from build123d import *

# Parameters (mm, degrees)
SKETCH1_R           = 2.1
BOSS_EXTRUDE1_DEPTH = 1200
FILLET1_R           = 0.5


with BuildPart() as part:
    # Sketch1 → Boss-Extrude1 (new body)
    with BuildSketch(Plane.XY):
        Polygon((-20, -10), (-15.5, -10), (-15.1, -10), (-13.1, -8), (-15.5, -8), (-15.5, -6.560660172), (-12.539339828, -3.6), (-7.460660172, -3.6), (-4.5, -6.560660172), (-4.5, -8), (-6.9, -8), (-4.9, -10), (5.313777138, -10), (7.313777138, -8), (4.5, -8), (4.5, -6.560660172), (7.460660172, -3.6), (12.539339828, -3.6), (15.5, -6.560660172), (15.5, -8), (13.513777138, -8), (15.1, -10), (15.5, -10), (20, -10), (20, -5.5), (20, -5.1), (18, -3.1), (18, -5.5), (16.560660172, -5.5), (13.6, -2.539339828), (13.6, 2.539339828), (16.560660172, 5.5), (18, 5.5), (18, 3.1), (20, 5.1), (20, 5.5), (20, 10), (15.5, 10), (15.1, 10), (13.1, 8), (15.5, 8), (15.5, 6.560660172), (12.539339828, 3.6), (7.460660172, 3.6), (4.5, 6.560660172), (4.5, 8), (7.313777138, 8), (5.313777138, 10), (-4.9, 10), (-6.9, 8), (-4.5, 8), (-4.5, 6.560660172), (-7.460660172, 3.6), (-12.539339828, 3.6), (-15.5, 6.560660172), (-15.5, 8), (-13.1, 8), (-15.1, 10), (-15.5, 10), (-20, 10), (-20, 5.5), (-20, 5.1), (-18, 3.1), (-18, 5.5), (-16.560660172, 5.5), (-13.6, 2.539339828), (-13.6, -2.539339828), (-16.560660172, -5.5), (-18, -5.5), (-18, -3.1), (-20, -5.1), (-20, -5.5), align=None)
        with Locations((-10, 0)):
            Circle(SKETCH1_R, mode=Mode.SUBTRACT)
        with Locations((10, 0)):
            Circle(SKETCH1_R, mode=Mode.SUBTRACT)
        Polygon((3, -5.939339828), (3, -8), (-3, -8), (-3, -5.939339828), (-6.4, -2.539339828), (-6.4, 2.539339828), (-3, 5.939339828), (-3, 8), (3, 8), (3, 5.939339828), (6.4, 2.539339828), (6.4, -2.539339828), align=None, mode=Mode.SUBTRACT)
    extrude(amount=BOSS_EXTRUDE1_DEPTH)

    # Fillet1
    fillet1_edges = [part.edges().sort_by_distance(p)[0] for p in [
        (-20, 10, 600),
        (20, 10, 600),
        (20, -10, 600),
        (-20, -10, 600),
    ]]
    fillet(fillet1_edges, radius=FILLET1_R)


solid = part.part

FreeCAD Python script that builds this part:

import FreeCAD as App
import Part
import Sketcher


def edges_at(feature, points):
    """Names of the edges that pass closest to the given points."""
    edges = feature.Shape.Edges
    near = lambda p: min(range(len(edges)), key=lambda i: edges[i].distToShape(Part.Vertex(*p))[0])
    return sorted({f"Edge{near(p) + 1}" for p in points})


def add_polygon(sketch, points):
    """Adds a closed chain of lines whose ends are joined by coincident constraints."""
    first, n = sketch.GeometryCount, len(points)
    for a, b in zip(points, points[1:] + points[:1]):
        sketch.addGeometry(Part.LineSegment(App.Vector(*a, 0), App.Vector(*b, 0)), False)
    for i in range(n):
        sketch.addConstraint(Sketcher.Constraint("Coincident", first + i, 2, first + (i + 1) % n, 1))

doc = App.newDocument("Part")
body = doc.addObject("PartDesign::Body", "Body")

# Sketch on XY plane
sketch1 = doc.addObject("Sketcher::SketchObject", "Sketch")
body.addObject(sketch1)
sketch1.AttachmentSupport = (doc.XY_Plane, [""])
sketch1.MapMode = "FlatFace"
add_polygon(sketch1, [(-20, -10), (-15.1, -10), (-13.1, -8), (-15.5, -8), (-15.5, -6.6), (-12.5, -3.6), (-7.5, -3.6), (-4.5, -6.6), (-4.5, -8), (-6.9, -8), (-4.9, -10), (5.3, -10), (7.3, -8), (4.5, -8), (4.5, -6.6), (7.5, -3.6), (12.5, -3.6), (15.5, -6.6), (15.5, -8), (13.5, -8), (15.1, -10), (20, -10), (20, -5.1), (18, -3.1), (18, -5.5), (16.6, -5.5), (13.6, -2.5), (13.6, 2.5), (16.6, 5.5), (18, 5.5), (18, 3.1), (20, 5.1), (20, 10), (15.1, 10), (13.1, 8), (15.5, 8), (15.5, 6.6), (12.5, 3.6), (7.5, 3.6), (4.5, 6.6), (4.5, 8), (7.3, 8), (5.3, 10), (-4.9, 10), (-6.9, 8), (-4.5, 8), (-4.5, 6.6), (-7.5, 3.6), (-12.5, 3.6), (-15.5, 6.6), (-15.5, 8), (-13.1, 8), (-15.1, 10), (-20, 10), (-20, 5.1), (-18, 3.1), (-18, 5.5), (-16.6, 5.5), (-13.6, 2.5), (-13.6, -2.5), (-16.6, -5.5), (-18, -5.5), (-18, -3.1), (-20, -5.1)])  # lines 0-63
sketch1.addGeometry(Part.Circle(App.Vector(-10, 0, 0), App.Vector(0, 0, 1), 2.1), False)  # 64
add_polygon(sketch1, [(6.4, -2.5), (3, -5.9), (3, -8), (-3, -8), (-3, -5.9), (-6.4, -2.5), (-6.4, 2.5), (-3, 5.9), (-3, 8), (3, 8), (3, 5.9), (6.4, 2.5)])  # lines 65-76
sketch1.addGeometry(Part.Circle(App.Vector(10, 0, 0), App.Vector(0, 0, 1), 2.1), False)  # 77
sketch1.addConstraint([
    Sketcher.Constraint("Horizontal", 0),
    Sketcher.Constraint("Horizontal", 2),
    Sketcher.Constraint("Vertical", 3),
    Sketcher.Constraint("Horizontal", 5),
    Sketcher.Constraint("Vertical", 7),
    Sketcher.Constraint("Horizontal", 8),
    Sketcher.Constraint("Horizontal", 10),
    Sketcher.Constraint("Horizontal", 12),
    Sketcher.Constraint("Vertical", 13),
    Sketcher.Constraint("Horizontal", 15),
    Sketcher.Constraint("Vertical", 17),
    Sketcher.Constraint("Horizontal", 18),
    Sketcher.Constraint("Horizontal", 20),
    Sketcher.Constraint("Vertical", 21),
    Sketcher.Constraint("Vertical", 23),
    Sketcher.Constraint("Horizontal", 24),
    Sketcher.Constraint("Vertical", 26),
    Sketcher.Constraint("Horizontal", 28),
    Sketcher.Constraint("Vertical", 29),
    Sketcher.Constraint("Vertical", 31),
    Sketcher.Constraint("Horizontal", 32),
    Sketcher.Constraint("Horizontal", 34),
    Sketcher.Constraint("Vertical", 35),
    Sketcher.Constraint("Horizontal", 37),
    Sketcher.Constraint("Vertical", 39),
    Sketcher.Constraint("Horizontal", 40),
    Sketcher.Constraint("Horizontal", 42),
    Sketcher.Constraint("Horizontal", 44),
    Sketcher.Constraint("Vertical", 45),
    Sketcher.Constraint("Horizontal", 47),
    Sketcher.Constraint("Vertical", 49),
    Sketcher.Constraint("Horizontal", 50),
    Sketcher.Constraint("Horizontal", 52),
    Sketcher.Constraint("Vertical", 53),
    Sketcher.Constraint("Vertical", 55),
    Sketcher.Constraint("Horizontal", 56),
    Sketcher.Constraint("Vertical", 58),
    Sketcher.Constraint("Horizontal", 60),
    Sketcher.Constraint("Vertical", 61),
    Sketcher.Constraint("Vertical", 63),
    Sketcher.Constraint("Vertical", 66),
    Sketcher.Constraint("Horizontal", 67),
    Sketcher.Constraint("Vertical", 68),
    Sketcher.Constraint("Vertical", 70),
    Sketcher.Constraint("Vertical", 72),
    Sketcher.Constraint("Horizontal", 73),
    Sketcher.Constraint("Vertical", 74),
    Sketcher.Constraint("Vertical", 76),
    Sketcher.Constraint("Equal", 64, 77),
    Sketcher.Constraint("Symmetric", 64, 3, 77, 3, -1, 1),
    Sketcher.Constraint("Symmetric", 0, 2, 32, 2, -1, 1),
    Sketcher.Constraint("Symmetric", 1, 2, 33, 2, -1, 1),
    Sketcher.Constraint("Symmetric", 3, 2, 35, 2, -1, 1),
    Sketcher.Constraint("Symmetric", 4, 2, 36, 2, -1, 1),
    Sketcher.Constraint("Symmetric", 6, 2, 38, 2, -1, 1),
    Sketcher.Constraint("Symmetric", 12, 2, 44, 2, -1, 1),
    Sketcher.Constraint("Symmetric", 14, 2, 46, 2, -1, 1),
    Sketcher.Constraint("Symmetric", 16, 2, 48, 2, -1, 1),
    Sketcher.Constraint("Symmetric", 19, 2, 51, 2, -1, 1),
    Sketcher.Constraint("Symmetric", 21, 2, 53, 2, -1, 1),
    Sketcher.Constraint("Symmetric", 22, 2, 54, 2, -1, 1),
    Sketcher.Constraint("Symmetric", 24, 2, 56, 2, -1, 1),
    Sketcher.Constraint("Symmetric", 25, 2, 57, 2, -1, 1),
    Sketcher.Constraint("Symmetric", 27, 2, 59, 2, -1, 1),
    Sketcher.Constraint("Symmetric", 29, 2, 61, 2, -1, 1),
    Sketcher.Constraint("Symmetric", 30, 2, 62, 2, -1, 1),
    Sketcher.Constraint("Symmetric", 65, 2, 71, 2, -1, 1),
    Sketcher.Constraint("Symmetric", 67, 2, 73, 2, -1, 1),
    Sketcher.Constraint("Symmetric", 69, 2, 75, 2, -1, 1),
    Sketcher.Constraint("Symmetric", 7, 2, 12, 2, -2),
    Sketcher.Constraint("Symmetric", 5, 2, 14, 2, -2),
    Sketcher.Constraint("Symmetric", 3, 2, 16, 2, -2),
    Sketcher.Constraint("Symmetric", 0, 2, 19, 2, -2),
    Sketcher.Constraint("Symmetric", 33, 2, 50, 2, -2),
    Sketcher.Constraint("Symmetric", 30, 2, 53, 2, -2),
    Sketcher.Constraint("Symmetric", 29, 2, 54, 2, -2),
    Sketcher.Constraint("Symmetric", 27, 2, 56, 2, -2),
    Sketcher.Constraint("Symmetric", 65, 2, 68, 2, -2),
    Sketcher.Constraint("Symmetric", 11, 2, 40, 2, -1),
    Sketcher.Constraint("Symmetric", 10, 2, 41, 2, -1),
    Sketcher.Constraint("PointOnObject", 64, 3, -1),
    Sketcher.Constraint("Parallel", 1, 4),
    Sketcher.Constraint("Perpendicular", 4, 6),
    Sketcher.Constraint("Parallel", 6, 9),
    Sketcher.Constraint("Perpendicular", 9, 11),
    Sketcher.Constraint("Parallel", 11, 14),
    Sketcher.Constraint("Perpendicular", 14, 16),
    Sketcher.Constraint("Parallel", 16, 22),
    Sketcher.Constraint("Parallel", 22, 25),
    Sketcher.Constraint("Perpendicular", 25, 27),
    Sketcher.Constraint("Parallel", 27, 30),
    Sketcher.Constraint("Perpendicular", 36, 38),
    Sketcher.Constraint("Perpendicular", 41, 43),
    Sketcher.Constraint("Parallel", 43, 46),
    Sketcher.Constraint("Perpendicular", 46, 48),
    Sketcher.Constraint("Perpendicular", 57, 59),
    Sketcher.Constraint("Parallel", 62, 65),
    Sketcher.Constraint("Perpendicular", 65, 69),
    Sketcher.Constraint("Perpendicular", 69, 71),
    Sketcher.Constraint("Perpendicular", 71, 75),
    Sketcher.Constraint("Horizontal", 3, 2, 6, 2),
    Sketcher.Constraint("Horizontal", 2, 2, 7, 2),
    Sketcher.Constraint("Horizontal", 0, 2, 9, 2),
    Sketcher.Constraint("Horizontal", 12, 2, 17, 2),
    Sketcher.Constraint("Horizontal", 18, 2, 66, 2),
    Sketcher.Constraint("Horizontal", 58, 2, 69, 2),
    Sketcher.Constraint("Vertical", 9, 2, 42, 2),
    Sketcher.Constraint("Equal", 2, 8),
    Sketcher.Constraint("Equal", 60, 3),
    Sketcher.Constraint("Equal", 52, 21),
    Sketcher.Constraint("Equal", 50, 23),
    Sketcher.Constraint("Equal", 47, 26),
    Sketcher.Constraint("Equal", 11, 22),
    Sketcher.Constraint("Equal", 16, 25),
    Sketcher.Constraint("Diameter", 64, 4.2),
    Sketcher.Constraint("DistanceX", 67, 2, 67, 1, 6.0),
    Sketcher.Constraint("DistanceX", 0, 1, 0, 2, 4.9),
    Sketcher.Constraint("DistanceX", 2, 2, 2, 1, 2.4),
    Sketcher.Constraint("DistanceX", 64, 3, -1, 1, 10.0),
    Sketcher.Constraint("DistanceY", 0, 2, -1, 1, 10.0),
    Sketcher.Constraint("DistanceY", 1, 2, -1, 1, 8.0),
    Sketcher.Constraint("DistanceX", -1, 1, 20, 2, 20.0),
    Sketcher.Constraint("DistanceY", 4, 2, -1, 1, 3.6),
    Sketcher.Constraint("DistanceX", 69, 2, -1, 1, 6.4),
    Sketcher.Constraint("DistanceX", 5, 1, 5, 2, 5.07868),
    Sketcher.Constraint("DistanceX", 10, 1, 10, 2, 10.213777),
    Sketcher.Constraint("DistanceX", 18, 2, 18, 1, 1.986223),
])
pad1 = doc.addObject("PartDesign::Pad", "Pad")
body.addObject(pad1)
pad1.Profile = sketch1
pad1.Length = 1200
doc.recompute()

fillet = doc.addObject("PartDesign::Fillet", "Fillet")
body.addObject(fillet)
fillet.Base = (pad1, edges_at(pad1, [
    (-20, 10, 600),
    (20, 10, 600),
    (20, -10, 600),
    (-20, -10, 600),
]))
fillet.Radius = 0.5

doc.recompute()
